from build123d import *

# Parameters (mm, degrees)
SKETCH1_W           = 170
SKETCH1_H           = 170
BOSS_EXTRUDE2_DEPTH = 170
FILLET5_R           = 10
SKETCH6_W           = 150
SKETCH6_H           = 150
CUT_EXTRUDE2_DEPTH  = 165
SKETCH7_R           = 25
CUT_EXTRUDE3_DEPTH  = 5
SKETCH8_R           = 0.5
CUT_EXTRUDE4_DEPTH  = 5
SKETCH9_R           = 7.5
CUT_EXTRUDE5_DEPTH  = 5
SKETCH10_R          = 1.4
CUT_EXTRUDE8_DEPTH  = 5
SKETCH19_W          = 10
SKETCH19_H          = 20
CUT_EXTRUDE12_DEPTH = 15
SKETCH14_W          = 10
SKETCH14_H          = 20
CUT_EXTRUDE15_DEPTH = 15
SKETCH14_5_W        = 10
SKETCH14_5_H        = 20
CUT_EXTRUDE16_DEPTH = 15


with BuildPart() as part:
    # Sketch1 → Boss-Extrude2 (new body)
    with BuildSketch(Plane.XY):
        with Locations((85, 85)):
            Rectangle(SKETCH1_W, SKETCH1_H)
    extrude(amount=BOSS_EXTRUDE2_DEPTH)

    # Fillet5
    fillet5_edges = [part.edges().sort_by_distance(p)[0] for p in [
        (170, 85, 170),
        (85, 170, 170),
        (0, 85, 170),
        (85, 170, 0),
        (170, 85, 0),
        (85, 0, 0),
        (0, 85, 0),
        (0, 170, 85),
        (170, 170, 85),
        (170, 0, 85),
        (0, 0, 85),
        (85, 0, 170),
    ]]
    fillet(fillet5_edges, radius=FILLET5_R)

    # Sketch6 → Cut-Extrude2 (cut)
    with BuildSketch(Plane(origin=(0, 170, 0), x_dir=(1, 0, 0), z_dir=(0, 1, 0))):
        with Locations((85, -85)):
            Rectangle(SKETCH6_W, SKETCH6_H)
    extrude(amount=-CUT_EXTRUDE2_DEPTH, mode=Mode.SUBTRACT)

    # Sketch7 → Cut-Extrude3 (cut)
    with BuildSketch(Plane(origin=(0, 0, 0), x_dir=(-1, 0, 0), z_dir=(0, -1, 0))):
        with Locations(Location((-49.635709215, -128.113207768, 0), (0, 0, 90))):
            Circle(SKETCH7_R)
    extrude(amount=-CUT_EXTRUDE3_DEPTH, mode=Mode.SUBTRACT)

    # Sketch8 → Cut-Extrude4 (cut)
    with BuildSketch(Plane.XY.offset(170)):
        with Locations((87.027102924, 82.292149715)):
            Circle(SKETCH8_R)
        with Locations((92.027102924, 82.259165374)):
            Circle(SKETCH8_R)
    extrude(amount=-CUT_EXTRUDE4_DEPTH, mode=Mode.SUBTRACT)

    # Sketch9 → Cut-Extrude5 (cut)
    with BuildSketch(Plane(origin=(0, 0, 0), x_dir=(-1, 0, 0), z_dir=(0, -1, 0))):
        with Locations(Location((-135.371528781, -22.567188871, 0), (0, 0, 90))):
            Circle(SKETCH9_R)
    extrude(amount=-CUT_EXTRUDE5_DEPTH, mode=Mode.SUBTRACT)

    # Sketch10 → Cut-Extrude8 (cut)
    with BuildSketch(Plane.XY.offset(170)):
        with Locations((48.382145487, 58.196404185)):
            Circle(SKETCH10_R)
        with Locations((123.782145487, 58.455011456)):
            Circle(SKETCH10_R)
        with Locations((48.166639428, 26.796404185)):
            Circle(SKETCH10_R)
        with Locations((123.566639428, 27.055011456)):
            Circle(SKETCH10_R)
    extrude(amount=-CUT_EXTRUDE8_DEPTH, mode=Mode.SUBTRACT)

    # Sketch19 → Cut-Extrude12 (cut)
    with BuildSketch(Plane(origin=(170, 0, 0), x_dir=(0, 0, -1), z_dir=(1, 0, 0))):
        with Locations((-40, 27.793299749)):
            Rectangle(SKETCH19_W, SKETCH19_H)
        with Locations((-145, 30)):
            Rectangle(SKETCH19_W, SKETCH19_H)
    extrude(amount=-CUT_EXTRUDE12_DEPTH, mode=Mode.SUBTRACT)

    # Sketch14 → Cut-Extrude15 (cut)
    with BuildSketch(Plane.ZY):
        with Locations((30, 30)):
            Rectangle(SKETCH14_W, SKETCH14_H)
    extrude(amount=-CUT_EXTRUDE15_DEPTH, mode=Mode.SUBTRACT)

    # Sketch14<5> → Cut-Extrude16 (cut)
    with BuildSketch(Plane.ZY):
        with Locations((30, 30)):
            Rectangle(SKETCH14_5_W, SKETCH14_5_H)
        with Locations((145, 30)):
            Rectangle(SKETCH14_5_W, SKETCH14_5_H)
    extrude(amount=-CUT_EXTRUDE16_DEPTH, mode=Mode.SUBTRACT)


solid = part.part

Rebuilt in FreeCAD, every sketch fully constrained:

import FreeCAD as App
import Part
import Sketcher

V = App.Vector


def add_polygon(sketch, points):
    """Adds a closed chain of lines whose ends are joined by coincident constraints."""
    first, n = sketch.GeometryCount, len(points)
    for a, b in zip(points, points[1:] + points[:1]):
        sketch.addGeometry(Part.LineSegment(App.Vector(*a, 0), App.Vector(*b, 0)), False)
    for i in range(n):
        sketch.addConstraint(Sketcher.Constraint("Coincident", first + i, 2, first + (i + 1) % n, 1))

doc = App.newDocument("Part")
params = doc.addObject("Spreadsheet::Sheet", "Params")
for row, (alias, value) in enumerate([
    ("sketch1_width", "170 mm"),
    ("pad1_length", "170 mm"),
    ("fillet_radius", "10 mm"),
    ("sketch2_width", "150 mm"),
    ("pocket1_length", "165 mm"),
    ("sketch3_diameter", "50 mm"),
    ("pocket2_length", "5 mm"),
    ("sketch4_diameter", "1 mm"),
    ("pocket3_length", "5 mm"),
    ("sketch5_diameter", "15 mm"),
    ("pocket4_length", "5 mm"),
    ("sketch6_diameter", "2.8 mm"),
    ("pocket5_length", "5 mm"),
    ("sketch7_width", "20 mm"),
    ("sketch7_height", "10 mm"),
    ("pocket6_length", "15 mm"),
    ("sketch8_width", "20 mm"),
    ("sketch8_height", "10 mm"),
    ("pocket7_length", "15 mm"),
    ("sketch9_width", "20 mm"),
    ("sketch9_height", "10 mm"),
    ("pocket8_length", "15 mm"),
], start=1):
    params.set(f"A{row}", alias)
    params.set(f"B{row}", "=" + value)
    params.setAlias(f"B{row}", alias)

body = doc.addObject("PartDesign::Body", "Body")

# Sketch on XY plane
sketch1 = body.newObject("Sketcher::SketchObject", "Sketch")
sketch1.AttachmentSupport = (doc.getObject("XY_Plane"), [""])
sketch1.MapMode = "FlatFace"
add_polygon(sketch1, [(0, 170), (0, 0), (170, 0), (170, 170)])  # lines 0-3
sketch1.addConstraint([
    Sketcher.Constraint("Vertical", 0),
    Sketcher.Constraint("Horizontal", 1),
    Sketcher.Constraint("Vertical", 2),
    Sketcher.Constraint("Horizontal", 3),
    Sketcher.Constraint("Coincident", 0, 2, -1, 1),
    Sketcher.Constraint("Equal", 3, 0),
    Sketcher.Constraint("DistanceX", 1, 1, 1, 2, 170.0),
])
sketch1.setExpression("Constraints[10]", "Params.sketch1_width")
pad1 = body.newObject("PartDesign::Pad", "Pad")
pad1.Profile = sketch1
pad1.setExpression("Length", "Params.pad1_length")
doc.recompute()

fillet = body.newObject("PartDesign::Fillet", "Fillet")
fillet.Base = (pad1, ["Edge1"])
fillet.UseAllEdges = True
fillet.setExpression("Radius", "Params.fillet_radius")

# Sketch on XZ plane
sketch2 = body.newObject("Sketcher::SketchObject", "Sketch001")
sketch2.AttachmentSupport = (doc.getObject("XZ_Plane"), [""])
sketch2.MapMode = "FlatFace"
sketch2.AttachmentOffset = App.Placement(V(0, 0, -170), App.Rotation())
add_polygon(sketch2, [(10, 10), (10, 160), (160, 160), (160, 10)])  # lines 0-3
sketch2.addConstraint([
    Sketcher.Constraint("Vertical", 0),
    Sketcher.Constraint("Horizontal", 1),
    Sketcher.Constraint("Vertical", 2),
    Sketcher.Constraint("Horizontal", 3),
    Sketcher.Constraint("Equal", 3, 0),
    Sketcher.Constraint("DistanceX", 1, 1, 1, 2, 150.0),
    Sketcher.Constraint("DistanceX", -1, 1, 0, 2, 10.0),
    Sketcher.Constraint("DistanceY", -1, 1, 0, 2, 160.0),
])
sketch2.setExpression("Constraints[9]", "Params.sketch2_width")
pocket1 = body.newObject("PartDesign::Pocket", "Pocket")
pocket1.Profile = sketch2
pocket1.setExpression("Length", "Params.pocket1_length")
pocket1.Reversed = True

# Sketch on XZ plane
sketch3 = body.newObject("Sketcher::SketchObject", "Sketch002")
sketch3.AttachmentSupport = (doc.getObject("XZ_Plane"), [""])
sketch3.MapMode = "FlatFace"
sketch3.addGeometry(Part.Circle(V(50, 128, 0), V(0, 0, 1), 25), False)
sketch3.addConstraint([
    Sketcher.Constraint("Diameter", 0, 50.0),
    Sketcher.Constraint("DistanceX", -1, 1, 0, 3, 49.635709),
    Sketcher.Constraint("DistanceY", -1, 1, 0, 3, 128.113208),
])
sketch3.setExpression("Constraints[0]", "Params.sketch3_diameter")
pocket2 = body.newObject("PartDesign::Pocket", "Pocket001")
pocket2.Profile = sketch3
pocket2.setExpression("Length", "Params.pocket2_length")

# Sketch on XY plane
sketch4 = body.newObject("Sketcher::SketchObject", "Sketch003")
sketch4.AttachmentSupport = (doc.getObject("XY_Plane"), [""])
sketch4.MapMode = "FlatFace"
sketch4.AttachmentOffset = App.Placement(V(0, 0, 170), App.Rotation())
sketch4.addGeometry([
    Part.Circle(V(87, 82.3, 0), V(0, 0, 1), 0.5),
    Part.Circle(V(92, 82.3, 0), V(0, 0, 1), 0.5),
], False)
sketch4.addConstraint([
    Sketcher.Constraint("Equal", 0, 1),
    Sketcher.Constraint("Diameter", 0, 1.0),
    Sketcher.Constraint("DistanceX", 0, 3, 1, 3, 5.0),
    Sketcher.Constraint("DistanceY", -1, 1, 0, 3, 82.29215),
    Sketcher.Constraint("DistanceX", -1, 1, 0, 3, 87.027103),
    Sketcher.Constraint("DistanceY", -1, 1, 1, 3, 82.259165),
])
sketch4.setExpression("Constraints[1]", "Params.sketch4_diameter")
pocket3 = body.newObject("PartDesign::Pocket", "Pocket002")
pocket3.Profile = sketch4
pocket3.setExpression("Length", "Params.pocket3_length")

# Sketch on XZ plane
sketch5 = body.newObject("Sketcher::SketchObject", "Sketch004")
sketch5.AttachmentSupport = (doc.getObject("XZ_Plane"), [""])
sketch5.MapMode = "FlatFace"
sketch5.addGeometry(Part.Circle(V(135, 23, 0), V(0, 0, 1), 8), False)
sketch5.addConstraint([
    Sketcher.Constraint("Diameter", 0, 15.0),
    Sketcher.Constraint("DistanceX", -1, 1, 0, 3, 135.371529),
    Sketcher.Constraint("DistanceY", -1, 1, 0, 3, 22.567189),
])
sketch5.setExpression("Constraints[0]", "Params.sketch5_diameter")
pocket4 = body.newObject("PartDesign::Pocket", "Pocket003")
pocket4.Profile = sketch5
pocket4.setExpression("Length", "Params.pocket4_length")

# Sketch on XY plane
sketch6 = body.newObject("Sketcher::SketchObject", "Sketch005")
sketch6.AttachmentSupport = (doc.getObject("XY_Plane"), [""])
sketch6.MapMode = "FlatFace"
sketch6.AttachmentOffset = App.Placement(V(0, 0, 170), App.Rotation())
sketch6.addGeometry([
    Part.Circle(V(48.4, 58.2, 0), V(0, 0, 1), 1.4),
    Part.Circle(V(123.8, 58.5, 0), V(0, 0, 1), 1.4),
    Part.Circle(V(48.2, 26.8, 0), V(0, 0, 1), 1.4),
    Part.Circle(V(123.6, 27.1, 0), V(0, 0, 1), 1.4),
], False)
sketch6.addConstraint([
    Sketcher.Constraint("Equal", 0, 1),
    Sketcher.Constraint("Equal", 1, 2),
    Sketcher.Constraint("Equal", 2, 3),
    Sketcher.Constraint("Diameter", 0, 2.8),
    Sketcher.Constraint("DistanceX", 0, 3, 1, 3, 75.4),
    Sketcher.Constraint("DistanceY", 2, 3, 0, 3, 31.4),
    Sketcher.Constraint("DistanceY", 3, 3, 1, 3, 31.4),
    Sketcher.Constraint("DistanceX", 2, 3, 3, 3, 75.4),
    Sketcher.Constraint("DistanceY", -1, 1, 1, 3, 58.455011),
    Sketcher.Constraint("DistanceX", -1, 1, 2, 3, 48.166639),
    Sketcher.Constraint("DistanceX", -1, 1, 0, 3, 48.382145),
    Sketcher.Constraint("DistanceY", -1, 1, 0, 3, 58.196404),
])
sketch6.setExpression("Constraints[3]", "Params.sketch6_diameter")
pocket5 = body.newObject("PartDesign::Pocket", "Pocket004")
pocket5.Profile = sketch6
pocket5.setExpression("Length", "Params.pocket5_length")

# Sketch on YZ plane
sketch7 = body.newObject("Sketcher::SketchObject", "Sketch006")
sketch7.AttachmentSupport = (doc.getObject("YZ_Plane"), [""])
sketch7.MapMode = "FlatFace"
sketch7.AttachmentOffset = App.Placement(V(0, 0, 170), App.Rotation())
add_polygon(sketch7, [(38, 45), (18, 45), (18, 35), (38, 35)])  # lines 0-3
add_polygon(sketch7, [(40, 150), (20, 150), (20, 140), (40, 140)])  # lines 4-7
sketch7.addConstraint([
    Sketcher.Constraint("Horizontal", 0),
    Sketcher.Constraint("Vertical", 1),
    Sketcher.Constraint("Horizontal", 2),
    Sketcher.Constraint("Vertical", 3),
    Sketcher.Constraint("Horizontal", 4),
    Sketcher.Constraint("Vertical", 5),
    Sketcher.Constraint("Horizontal", 6),
    Sketcher.Constraint("Vertical", 7),
    Sketcher.Constraint("Equal", 2, 4),
    Sketcher.Constraint("Equal", 3, 5),
    Sketcher.Constraint("DistanceX", 0, 2, 0, 1, 20.0),
    Sketcher.Constraint("DistanceY", 1, 2, 1, 1, 10.0),
    Sketcher.Constraint("DistanceY", -1, 1, 0, 2, 45.0),
    Sketcher.Constraint("DistanceX", -1, 1, 4, 2, 20.0),
    Sketcher.Constraint("DistanceY", -1, 1, 4, 2, 150.0),
    Sketcher.Constraint("DistanceX", -1, 1, 0, 2, 17.7933),
])
sketch7.setExpression("Constraints[18]", "Params.sketch7_width")
sketch7.setExpression("Constraints[19]", "Params.sketch7_height")
pocket6 = body.newObject("PartDesign::Pocket", "Pocket005")
pocket6.Profile = sketch7
pocket6.setExpression("Length", "Params.pocket6_length")

# Sketch on YZ plane
sketch8 = body.newObject("Sketcher::SketchObject", "Sketch007")
sketch8.AttachmentSupport = (doc.getObject("YZ_Plane"), [""])
sketch8.MapMode = "FlatFace"
add_polygon(sketch8, [(40, 25), (20, 25), (20, 35), (40, 35)])  # lines 0-3
sketch8.addConstraint([
    Sketcher.Constraint("Horizontal", 0),
    Sketcher.Constraint("Vertical", 1),
    Sketcher.Constraint("Horizontal", 2),
    Sketcher.Constraint("Vertical", 3),
    Sketcher.Constraint("DistanceX", 0, 2, 0, 1, 20.0),
    Sketcher.Constraint("DistanceY", 1, 1, 1, 2, 10.0),
    Sketcher.Constraint("DistanceX", -1, 1, 0, 2, 20.0),
    Sketcher.Constraint("DistanceY", -1, 1, 0, 2, 25.0),
])
sketch8.setExpression("Constraints[8]", "Params.sketch8_width")
sketch8.setExpression("Constraints[9]", "Params.sketch8_height")
pocket7 = body.newObject("PartDesign::Pocket", "Pocket006")
pocket7.Profile = sketch8
pocket7.setExpression("Length", "Params.pocket7_length")
pocket7.Reversed = True

# Sketch on YZ plane
sketch9 = body.newObject("Sketcher::SketchObject", "Sketch008")
sketch9.AttachmentSupport = (doc.getObject("YZ_Plane"), [""])
sketch9.MapMode = "FlatFace"
add_polygon(sketch9, [(40, 25), (20, 25), (20, 35), (40, 35)])  # lines 0-3
add_polygon(sketch9, [(40, 140), (20, 140), (20, 150), (40, 150)])  # lines 4-7
sketch9.addConstraint([
    Sketcher.Constraint("Horizontal", 0),
    Sketcher.Constraint("Vertical", 1),
    Sketcher.Constraint("Horizontal", 2),
    Sketcher.Constraint("Vertical", 3),
    Sketcher.Constraint("Horizontal", 4),
    Sketcher.Constraint("Vertical", 5),
    Sketcher.Constraint("Horizontal", 6),
    Sketcher.Constraint("Vertical", 7),
    Sketcher.Constraint("Vertical", 1, 2, 4, 2),
    Sketcher.Constraint("Vertical", 3, 2, 6, 2),
    Sketcher.Constraint("Equal", 3, 5),
    Sketcher.Constraint("DistanceX", 0, 2, 0, 1, 20.0),
    Sketcher.Constraint("DistanceY", 1, 1, 1, 2, 10.0),
    Sketcher.Constraint("DistanceX", -1, 1, 0, 2, 20.0),
    Sketcher.Constraint("DistanceY", -1, 1, 0, 2, 25.0),
    Sketcher.Constraint("DistanceY", -1, 1, 4, 2, 140.0),
])
sketch9.setExpression("Constraints[19]", "Params.sketch9_width")
sketch9.setExpression("Constraints[20]", "Params.sketch9_height")
pocket8 = body.newObject("PartDesign::Pocket", "Pocket007")
pocket8.Profile = sketch9
pocket8.setExpression("Length", "Params.pocket8_length")
pocket8.Reversed = True

doc.recompute()
